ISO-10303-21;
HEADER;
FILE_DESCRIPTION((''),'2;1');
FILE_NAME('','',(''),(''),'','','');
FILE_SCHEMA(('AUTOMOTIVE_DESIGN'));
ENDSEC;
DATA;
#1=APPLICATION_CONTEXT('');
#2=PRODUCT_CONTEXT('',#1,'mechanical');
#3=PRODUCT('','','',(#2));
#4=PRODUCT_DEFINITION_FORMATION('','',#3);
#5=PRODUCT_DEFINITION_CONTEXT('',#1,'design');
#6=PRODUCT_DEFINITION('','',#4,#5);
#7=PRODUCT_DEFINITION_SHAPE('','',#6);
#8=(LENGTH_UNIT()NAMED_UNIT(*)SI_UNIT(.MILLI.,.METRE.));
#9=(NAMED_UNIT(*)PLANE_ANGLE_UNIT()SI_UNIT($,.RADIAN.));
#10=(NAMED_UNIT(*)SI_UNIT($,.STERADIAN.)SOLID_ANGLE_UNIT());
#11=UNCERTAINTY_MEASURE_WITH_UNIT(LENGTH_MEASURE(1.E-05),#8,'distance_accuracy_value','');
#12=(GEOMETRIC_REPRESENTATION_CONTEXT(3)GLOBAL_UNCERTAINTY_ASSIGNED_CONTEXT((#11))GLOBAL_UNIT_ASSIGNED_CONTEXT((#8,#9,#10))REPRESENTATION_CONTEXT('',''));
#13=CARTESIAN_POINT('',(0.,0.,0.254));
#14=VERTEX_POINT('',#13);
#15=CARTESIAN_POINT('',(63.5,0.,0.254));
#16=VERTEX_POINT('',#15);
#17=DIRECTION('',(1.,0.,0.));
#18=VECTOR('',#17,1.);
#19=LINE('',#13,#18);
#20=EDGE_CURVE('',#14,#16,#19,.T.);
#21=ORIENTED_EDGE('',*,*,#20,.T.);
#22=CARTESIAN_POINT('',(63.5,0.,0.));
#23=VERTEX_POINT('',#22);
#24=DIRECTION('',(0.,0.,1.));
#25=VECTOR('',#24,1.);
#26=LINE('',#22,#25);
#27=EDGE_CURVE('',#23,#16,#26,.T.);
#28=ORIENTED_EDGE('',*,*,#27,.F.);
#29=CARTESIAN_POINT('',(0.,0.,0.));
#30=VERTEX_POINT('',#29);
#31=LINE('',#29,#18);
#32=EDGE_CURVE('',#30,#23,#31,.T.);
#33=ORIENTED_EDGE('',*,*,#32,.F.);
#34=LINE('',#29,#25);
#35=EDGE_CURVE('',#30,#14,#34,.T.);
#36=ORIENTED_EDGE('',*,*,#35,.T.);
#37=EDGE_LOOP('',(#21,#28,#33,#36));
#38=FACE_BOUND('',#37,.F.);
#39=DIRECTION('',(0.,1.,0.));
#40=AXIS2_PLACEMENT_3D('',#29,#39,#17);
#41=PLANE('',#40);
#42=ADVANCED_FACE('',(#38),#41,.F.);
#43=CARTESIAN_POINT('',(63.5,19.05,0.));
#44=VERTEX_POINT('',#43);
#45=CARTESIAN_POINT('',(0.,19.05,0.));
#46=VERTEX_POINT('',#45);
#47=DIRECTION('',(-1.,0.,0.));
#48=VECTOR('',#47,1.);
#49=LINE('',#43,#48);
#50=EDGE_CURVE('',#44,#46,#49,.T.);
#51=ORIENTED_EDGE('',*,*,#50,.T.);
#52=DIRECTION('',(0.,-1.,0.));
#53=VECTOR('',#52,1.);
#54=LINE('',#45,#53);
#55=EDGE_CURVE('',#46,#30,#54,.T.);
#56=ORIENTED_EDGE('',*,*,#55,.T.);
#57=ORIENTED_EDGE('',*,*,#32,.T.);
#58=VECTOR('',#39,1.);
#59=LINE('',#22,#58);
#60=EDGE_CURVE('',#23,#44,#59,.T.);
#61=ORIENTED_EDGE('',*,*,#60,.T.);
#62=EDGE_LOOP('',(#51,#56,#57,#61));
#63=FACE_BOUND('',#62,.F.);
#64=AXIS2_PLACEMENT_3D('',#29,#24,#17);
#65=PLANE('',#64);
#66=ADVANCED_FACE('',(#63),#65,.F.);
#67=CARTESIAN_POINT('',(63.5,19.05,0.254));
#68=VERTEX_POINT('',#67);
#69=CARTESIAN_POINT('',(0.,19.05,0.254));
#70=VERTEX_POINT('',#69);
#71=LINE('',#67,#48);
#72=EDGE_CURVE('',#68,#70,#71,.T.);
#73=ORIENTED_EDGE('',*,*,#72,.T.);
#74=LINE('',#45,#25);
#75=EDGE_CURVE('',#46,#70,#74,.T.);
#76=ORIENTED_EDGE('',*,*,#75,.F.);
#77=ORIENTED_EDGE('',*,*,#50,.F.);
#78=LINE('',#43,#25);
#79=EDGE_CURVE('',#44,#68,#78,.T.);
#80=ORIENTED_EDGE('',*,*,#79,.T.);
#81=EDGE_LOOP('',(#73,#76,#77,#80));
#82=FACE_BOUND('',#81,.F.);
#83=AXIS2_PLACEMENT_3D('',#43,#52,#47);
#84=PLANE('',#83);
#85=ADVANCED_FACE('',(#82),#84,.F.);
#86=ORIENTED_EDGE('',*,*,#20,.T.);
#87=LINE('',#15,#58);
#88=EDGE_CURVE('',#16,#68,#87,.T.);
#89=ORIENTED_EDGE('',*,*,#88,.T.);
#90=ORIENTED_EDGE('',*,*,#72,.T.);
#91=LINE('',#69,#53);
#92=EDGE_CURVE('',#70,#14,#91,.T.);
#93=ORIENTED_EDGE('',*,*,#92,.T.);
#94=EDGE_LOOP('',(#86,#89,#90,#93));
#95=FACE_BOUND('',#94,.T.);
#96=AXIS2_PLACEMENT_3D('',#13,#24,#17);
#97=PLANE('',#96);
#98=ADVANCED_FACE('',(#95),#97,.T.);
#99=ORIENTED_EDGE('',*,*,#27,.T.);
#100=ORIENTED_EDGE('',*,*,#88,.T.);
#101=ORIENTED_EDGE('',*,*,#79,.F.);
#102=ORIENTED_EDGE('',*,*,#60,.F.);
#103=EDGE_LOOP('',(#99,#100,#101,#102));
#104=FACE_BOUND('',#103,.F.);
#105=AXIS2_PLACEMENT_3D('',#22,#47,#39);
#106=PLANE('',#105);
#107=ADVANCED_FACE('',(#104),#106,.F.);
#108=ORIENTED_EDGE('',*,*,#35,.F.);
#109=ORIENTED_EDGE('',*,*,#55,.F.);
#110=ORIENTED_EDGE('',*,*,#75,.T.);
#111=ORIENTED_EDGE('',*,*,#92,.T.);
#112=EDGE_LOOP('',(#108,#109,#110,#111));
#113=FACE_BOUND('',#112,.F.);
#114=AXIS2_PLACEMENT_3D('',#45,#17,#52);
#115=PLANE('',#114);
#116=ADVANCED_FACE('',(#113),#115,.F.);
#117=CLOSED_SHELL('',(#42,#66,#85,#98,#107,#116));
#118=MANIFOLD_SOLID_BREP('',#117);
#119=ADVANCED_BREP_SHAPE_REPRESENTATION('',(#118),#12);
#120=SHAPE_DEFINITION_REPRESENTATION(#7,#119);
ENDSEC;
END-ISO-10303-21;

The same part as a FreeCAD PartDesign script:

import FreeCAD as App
import Part
import Sketcher
Q = App.Units.Quantity


def add_polygon(sketch, points):
    """Adds a closed chain of lines whose ends are joined by coincident constraints."""
    first, n = sketch.GeometryCount, len(points)
    for a, b in zip(points, points[1:] + points[:1]):
        sketch.addGeometry(Part.LineSegment(App.Vector(*a, 0), App.Vector(*b, 0)), False)
    for i in range(n):
        sketch.addConstraint(Sketcher.Constraint("Coincident", first + i, 2, first + (i + 1) % n, 1))

doc = App.newDocument("Part")
body = doc.addObject("PartDesign::Body", "Body")

# Sketch on XY plane
sketch1 = body.newObject("Sketcher::SketchObject", "Sketch")
sketch1.AttachmentSupport = (doc.getObject("XY_Plane"), [""])
sketch1.MapMode = "FlatFace"
add_polygon(sketch1, [(0, 19), (0, 0), (64, 0), (64, 19)])  # lines 0-3
sketch1.addConstraint([
    Sketcher.Constraint("Vertical", 0),
    Sketcher.Constraint("Horizontal", 1),
    Sketcher.Constraint("Vertical", 2),
    Sketcher.Constraint("Horizontal", 3),
    Sketcher.Constraint("Coincident", 0, 2, -1, 1),
    Sketcher.Constraint("DistanceX", 1, 1, 1, 2, Q("2.5 in")),
    Sketcher.Constraint("DistanceY", 0, 2, 0, 1, Q("0.75 in")),
])
pad1 = body.newObject("PartDesign::Pad", "Pad")
pad1.Profile = sketch1
pad1.Length = Q("0.01 in")

doc.recompute()
